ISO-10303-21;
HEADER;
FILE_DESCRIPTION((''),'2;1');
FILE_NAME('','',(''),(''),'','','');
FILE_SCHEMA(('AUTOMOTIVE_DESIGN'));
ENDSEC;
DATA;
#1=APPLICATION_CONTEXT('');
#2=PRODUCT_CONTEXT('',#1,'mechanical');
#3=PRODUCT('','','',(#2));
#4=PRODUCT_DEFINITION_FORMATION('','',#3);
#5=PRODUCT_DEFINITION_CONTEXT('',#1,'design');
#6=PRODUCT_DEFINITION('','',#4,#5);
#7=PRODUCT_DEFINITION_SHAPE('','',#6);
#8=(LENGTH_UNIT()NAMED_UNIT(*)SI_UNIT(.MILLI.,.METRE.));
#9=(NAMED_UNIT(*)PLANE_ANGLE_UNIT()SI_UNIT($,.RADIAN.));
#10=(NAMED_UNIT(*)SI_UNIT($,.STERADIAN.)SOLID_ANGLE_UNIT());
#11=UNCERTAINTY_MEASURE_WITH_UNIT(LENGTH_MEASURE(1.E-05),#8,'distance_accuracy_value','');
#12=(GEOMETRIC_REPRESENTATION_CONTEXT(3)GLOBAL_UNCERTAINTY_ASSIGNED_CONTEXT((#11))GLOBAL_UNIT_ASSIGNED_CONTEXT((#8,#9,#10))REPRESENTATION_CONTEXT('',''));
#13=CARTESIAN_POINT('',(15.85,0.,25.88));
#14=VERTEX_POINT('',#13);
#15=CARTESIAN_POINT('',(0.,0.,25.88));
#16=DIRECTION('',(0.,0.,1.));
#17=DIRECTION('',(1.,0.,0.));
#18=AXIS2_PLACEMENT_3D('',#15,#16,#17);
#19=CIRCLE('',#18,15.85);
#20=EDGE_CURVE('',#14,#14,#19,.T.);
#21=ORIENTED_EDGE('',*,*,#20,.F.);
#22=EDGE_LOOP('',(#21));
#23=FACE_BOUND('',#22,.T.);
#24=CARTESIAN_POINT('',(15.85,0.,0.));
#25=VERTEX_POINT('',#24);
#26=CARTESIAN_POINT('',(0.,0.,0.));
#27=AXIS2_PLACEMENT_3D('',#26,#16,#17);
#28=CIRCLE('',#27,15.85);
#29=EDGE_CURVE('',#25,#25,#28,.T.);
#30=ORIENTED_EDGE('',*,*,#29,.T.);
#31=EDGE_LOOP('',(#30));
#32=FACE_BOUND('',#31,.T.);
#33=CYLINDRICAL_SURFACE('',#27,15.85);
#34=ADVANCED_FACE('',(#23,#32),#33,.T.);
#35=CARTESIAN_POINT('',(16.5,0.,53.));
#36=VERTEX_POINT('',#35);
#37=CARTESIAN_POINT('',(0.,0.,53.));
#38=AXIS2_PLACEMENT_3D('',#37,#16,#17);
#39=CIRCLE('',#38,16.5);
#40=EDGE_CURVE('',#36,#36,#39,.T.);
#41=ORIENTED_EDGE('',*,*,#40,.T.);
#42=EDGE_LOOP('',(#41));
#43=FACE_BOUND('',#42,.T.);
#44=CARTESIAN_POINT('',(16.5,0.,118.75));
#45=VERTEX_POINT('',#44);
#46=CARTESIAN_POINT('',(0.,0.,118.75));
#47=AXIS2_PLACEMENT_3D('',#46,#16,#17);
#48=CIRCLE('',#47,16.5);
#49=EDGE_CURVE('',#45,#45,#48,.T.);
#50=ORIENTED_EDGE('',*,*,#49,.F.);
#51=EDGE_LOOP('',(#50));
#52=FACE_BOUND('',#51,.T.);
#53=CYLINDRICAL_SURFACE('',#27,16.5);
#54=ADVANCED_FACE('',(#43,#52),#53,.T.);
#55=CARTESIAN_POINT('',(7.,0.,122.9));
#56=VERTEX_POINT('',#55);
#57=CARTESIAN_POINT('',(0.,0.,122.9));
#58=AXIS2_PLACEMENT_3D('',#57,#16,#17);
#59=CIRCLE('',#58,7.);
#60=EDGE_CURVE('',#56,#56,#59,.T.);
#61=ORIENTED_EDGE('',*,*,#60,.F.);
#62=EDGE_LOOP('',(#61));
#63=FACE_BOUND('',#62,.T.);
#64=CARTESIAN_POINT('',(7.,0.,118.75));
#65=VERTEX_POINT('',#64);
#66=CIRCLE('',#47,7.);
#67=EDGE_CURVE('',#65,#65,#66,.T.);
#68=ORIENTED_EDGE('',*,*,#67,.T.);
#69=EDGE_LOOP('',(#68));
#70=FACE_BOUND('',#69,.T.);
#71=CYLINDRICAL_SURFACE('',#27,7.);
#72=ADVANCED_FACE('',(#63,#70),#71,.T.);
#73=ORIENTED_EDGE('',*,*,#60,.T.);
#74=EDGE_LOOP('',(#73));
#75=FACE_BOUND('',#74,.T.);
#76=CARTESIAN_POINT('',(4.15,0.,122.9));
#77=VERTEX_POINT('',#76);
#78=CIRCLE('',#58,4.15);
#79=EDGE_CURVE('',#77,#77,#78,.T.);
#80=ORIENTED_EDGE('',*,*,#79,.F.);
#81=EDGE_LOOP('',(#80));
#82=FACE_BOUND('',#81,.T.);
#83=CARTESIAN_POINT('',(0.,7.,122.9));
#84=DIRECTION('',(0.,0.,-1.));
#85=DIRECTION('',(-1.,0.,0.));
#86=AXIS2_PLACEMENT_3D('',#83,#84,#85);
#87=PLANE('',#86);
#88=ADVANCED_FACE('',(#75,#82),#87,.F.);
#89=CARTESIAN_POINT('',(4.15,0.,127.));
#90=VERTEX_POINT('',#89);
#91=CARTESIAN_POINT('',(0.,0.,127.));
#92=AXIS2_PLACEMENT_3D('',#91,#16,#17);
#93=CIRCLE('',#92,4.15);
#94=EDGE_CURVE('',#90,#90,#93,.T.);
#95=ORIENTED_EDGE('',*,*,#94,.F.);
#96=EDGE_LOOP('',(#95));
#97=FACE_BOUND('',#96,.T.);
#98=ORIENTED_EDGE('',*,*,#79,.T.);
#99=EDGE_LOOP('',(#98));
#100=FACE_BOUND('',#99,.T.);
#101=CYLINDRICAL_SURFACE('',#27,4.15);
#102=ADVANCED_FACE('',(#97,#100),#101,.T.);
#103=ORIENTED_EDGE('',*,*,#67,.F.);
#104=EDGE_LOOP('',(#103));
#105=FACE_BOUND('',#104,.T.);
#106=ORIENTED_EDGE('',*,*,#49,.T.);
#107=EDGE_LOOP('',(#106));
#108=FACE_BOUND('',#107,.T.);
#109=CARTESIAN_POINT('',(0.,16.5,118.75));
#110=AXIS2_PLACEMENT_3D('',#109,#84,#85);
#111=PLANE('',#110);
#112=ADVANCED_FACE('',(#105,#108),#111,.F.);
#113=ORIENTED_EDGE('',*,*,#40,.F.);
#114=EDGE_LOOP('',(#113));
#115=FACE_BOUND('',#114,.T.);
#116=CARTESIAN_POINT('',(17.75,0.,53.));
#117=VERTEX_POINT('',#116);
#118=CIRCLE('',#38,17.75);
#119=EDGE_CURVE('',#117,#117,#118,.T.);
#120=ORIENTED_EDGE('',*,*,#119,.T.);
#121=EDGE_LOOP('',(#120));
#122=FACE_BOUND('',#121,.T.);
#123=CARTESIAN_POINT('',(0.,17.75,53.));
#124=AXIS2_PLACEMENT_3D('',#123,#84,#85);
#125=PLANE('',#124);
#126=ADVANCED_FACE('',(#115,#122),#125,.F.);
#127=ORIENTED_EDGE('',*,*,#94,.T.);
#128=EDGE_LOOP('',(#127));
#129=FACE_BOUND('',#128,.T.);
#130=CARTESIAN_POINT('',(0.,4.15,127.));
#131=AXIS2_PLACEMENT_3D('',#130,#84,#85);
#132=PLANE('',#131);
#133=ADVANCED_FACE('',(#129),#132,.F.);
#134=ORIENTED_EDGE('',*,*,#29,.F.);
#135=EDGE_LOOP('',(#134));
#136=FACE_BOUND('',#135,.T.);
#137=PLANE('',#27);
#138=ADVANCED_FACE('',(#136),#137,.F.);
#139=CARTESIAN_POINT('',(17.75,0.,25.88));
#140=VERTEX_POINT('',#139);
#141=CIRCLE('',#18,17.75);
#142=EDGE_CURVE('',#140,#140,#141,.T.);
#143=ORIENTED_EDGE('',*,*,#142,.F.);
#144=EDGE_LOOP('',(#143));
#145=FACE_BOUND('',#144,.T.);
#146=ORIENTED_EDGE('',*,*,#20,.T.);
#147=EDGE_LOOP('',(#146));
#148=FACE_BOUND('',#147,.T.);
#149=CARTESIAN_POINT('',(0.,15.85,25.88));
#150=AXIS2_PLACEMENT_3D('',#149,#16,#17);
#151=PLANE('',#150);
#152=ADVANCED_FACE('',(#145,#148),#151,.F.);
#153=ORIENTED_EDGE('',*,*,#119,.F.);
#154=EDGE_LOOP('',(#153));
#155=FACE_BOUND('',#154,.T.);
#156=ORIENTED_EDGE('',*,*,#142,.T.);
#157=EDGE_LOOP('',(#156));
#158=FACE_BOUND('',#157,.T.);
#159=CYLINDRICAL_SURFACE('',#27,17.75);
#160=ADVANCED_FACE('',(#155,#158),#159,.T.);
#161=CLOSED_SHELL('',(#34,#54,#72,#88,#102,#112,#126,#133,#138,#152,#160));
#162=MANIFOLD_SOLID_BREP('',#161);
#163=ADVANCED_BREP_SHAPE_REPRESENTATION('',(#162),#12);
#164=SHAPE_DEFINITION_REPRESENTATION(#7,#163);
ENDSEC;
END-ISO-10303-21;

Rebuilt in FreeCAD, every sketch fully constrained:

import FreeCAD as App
import Part
import Sketcher

V = App.Vector


def add_polygon(sketch, points):
    """Adds a closed chain of lines whose ends are joined by coincident constraints."""
    first, n = sketch.GeometryCount, len(points)
    for a, b in zip(points, points[1:] + points[:1]):
        sketch.addGeometry(Part.LineSegment(App.Vector(*a, 0), App.Vector(*b, 0)), False)
    for i in range(n):
        sketch.addConstraint(Sketcher.Constraint("Coincident", first + i, 2, first + (i + 1) % n, 1))

doc = App.newDocument("Part")
body = doc.addObject("PartDesign::Body", "Body")

sketch1 = doc.addObject("Sketcher::SketchObject", "Sketch")
body.addObject(sketch1)
sketch1.AttachmentSupport = (doc.YZ_Plane, [""])
sketch1.MapMode = "FlatFace"
add_polygon(sketch1, [(0, 127), (0, 0), (15.8, 0), (15.8, 25.9), (17.8, 25.9), (17.8, 53), (16.5, 53), (16.5, 118.8), (7, 118.8), (7, 122.9), (4.2, 122.9), (4.2, 127)])
sketch1.addConstraint(Sketcher.Constraint("Vertical", 0))
sketch1.addConstraint(Sketcher.Constraint("Horizontal", 1))
sketch1.addConstraint(Sketcher.Constraint("Vertical", 2))
sketch1.addConstraint(Sketcher.Constraint("Horizontal", 3))
sketch1.addConstraint(Sketcher.Constraint("Vertical", 4))
sketch1.addConstraint(Sketcher.Constraint("Horizontal", 5))
sketch1.addConstraint(Sketcher.Constraint("Vertical", 6))
sketch1.addConstraint(Sketcher.Constraint("Horizontal", 7))
sketch1.addConstraint(Sketcher.Constraint("Vertical", 8))
sketch1.addConstraint(Sketcher.Constraint("Horizontal", 9))
sketch1.addConstraint(Sketcher.Constraint("Vertical", 10))
sketch1.addConstraint(Sketcher.Constraint("Horizontal", 11))
sketch1.addConstraint(Sketcher.Constraint("Coincident", 0, 2, -1, 1))
sketch1.addConstraint(Sketcher.Constraint("Equal", 11, 8))
sketch1.addConstraint(Sketcher.Constraint("DistanceY", 0, 2, 0, 1, 127.0))
sketch1.addConstraint(Sketcher.Constraint("DistanceX", 3, 1, 3, 2, 1.9))
sketch1.addConstraint(Sketcher.Constraint("DistanceX", 7, 2, 7, 1, 9.5))
sketch1.addConstraint(Sketcher.Constraint("DistanceY", 10, 1, 10, 2, 4.1))
sketch1.addConstraint(Sketcher.Constraint("DistanceY", -1, 1, 4, 2, 53.0))
sketch1.addConstraint(Sketcher.Constraint("DistanceX", -1, 1, 7, 2, 7.0))
sketch1.addConstraint(Sketcher.Constraint("DistanceX", 1, 1, 1, 2, 15.85))
sketch1.addConstraint(Sketcher.Constraint("DistanceX", 9, 2, 9, 1, 2.85))
sketch1.addConstraint(Sketcher.Constraint("DistanceY", 2, 1, 2, 2, 25.88))
revolution = doc.addObject("PartDesign::Revolution", "Revolution")
body.addObject(revolution)
revolution.Profile = sketch1
revolution.ReferenceAxis = (sketch1, ["V_Axis"])
revolution.Angle = 360

doc.recompute()
